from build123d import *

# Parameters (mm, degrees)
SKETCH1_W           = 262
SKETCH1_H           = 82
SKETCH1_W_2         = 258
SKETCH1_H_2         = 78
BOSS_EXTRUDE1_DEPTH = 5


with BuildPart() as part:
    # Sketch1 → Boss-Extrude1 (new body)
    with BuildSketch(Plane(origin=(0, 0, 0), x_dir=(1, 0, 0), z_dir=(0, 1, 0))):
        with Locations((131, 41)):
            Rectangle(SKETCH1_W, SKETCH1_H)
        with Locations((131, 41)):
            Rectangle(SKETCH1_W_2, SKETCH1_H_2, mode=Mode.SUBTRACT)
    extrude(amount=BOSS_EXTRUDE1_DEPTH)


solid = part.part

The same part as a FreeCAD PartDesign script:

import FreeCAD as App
import Part
import Sketcher
from FreeCAD import Vector


def add_polygon(sketch, points):
    """Adds a closed chain of lines whose ends are joined by coincident constraints."""
    first, n = sketch.GeometryCount, len(points)
    for a, b in zip(points, points[1:] + points[:1]):
        sketch.addGeometry(Part.LineSegment(App.Vector(*a, 0), App.Vector(*b, 0)), False)
    for i in range(n):
        sketch.addConstraint(Sketcher.Constraint("Coincident", first + i, 2, first + (i + 1) % n, 1))

doc = App.newDocument("Part")
params = doc.addObject("Spreadsheet::Sheet", "Params")
for row, (alias, value) in enumerate([
    ("sketch1_width", "262 mm"),
    ("sketch1_width2", "258 mm"),
    ("sketch1_height", "82 mm"),
    ("sketch1_height2", "78 mm"),
    ("pad1_length", "5 mm"),
], start=1):
    params.set(f"A{row}", alias)
    params.set(f"B{row}", "=" + value)
    params.setAlias(f"B{row}", alias)

body = doc.addObject("PartDesign::Body", "Body")

# Sketch on XZ plane
sketch1 = doc.addObject("Sketcher::SketchObject", "Sketch")
body.addObject(sketch1)
sketch1.AttachmentSupport = (doc.XZ_Plane, [""])
sketch1.MapMode = "FlatFace"
add_polygon(sketch1, [(0, -82), (0, 0), (262, 0), (262, -82)])  # lines 0-3
add_polygon(sketch1, [(260, -2), (2, -2), (2, -80), (260, -80)])  # lines 4-7
sketch1.addConstraint([
    Sketcher.Constraint("Vertical", 0),
    Sketcher.Constraint("Horizontal", 1),
    Sketcher.Constraint("Vertical", 2),
    Sketcher.Constraint("Horizontal", 3),
    Sketcher.Constraint("Horizontal", 4),
    Sketcher.Constraint("Vertical", 5),
    Sketcher.Constraint("Horizontal", 6),
    Sketcher.Constraint("Vertical", 7),
    Sketcher.Constraint("Coincident", 0, 2, -1, 1),
    Sketcher.Constraint("DistanceX", 1, 1, 1, 2, 262.0),
    Sketcher.Constraint("DistanceX", 4, 2, 4, 1, 258.0),
    Sketcher.Constraint("DistanceY", 0, 1, 0, 2, 82.0),
    Sketcher.Constraint("DistanceY", 5, 2, 5, 1, 78.0),
    Sketcher.Constraint("DistanceX", -1, 1, 4, 2, 2.0),
    Sketcher.Constraint("DistanceY", 4, 2, -1, 1, 2.0),
])
sketch1.setExpression("Constraints[17]", "Params.sketch1_width")
sketch1.setExpression("Constraints[18]", "Params.sketch1_width2")
sketch1.setExpression("Constraints[19]", "Params.sketch1_height")
sketch1.setExpression("Constraints[20]", "Params.sketch1_height2")
pad1 = doc.addObject("PartDesign::Pad", "Pad")
body.addObject(pad1)
pad1.Profile = sketch1
pad1.setExpression("Length", "Params.pad1_length")
pad1.Reversed = True

doc.recompute()
